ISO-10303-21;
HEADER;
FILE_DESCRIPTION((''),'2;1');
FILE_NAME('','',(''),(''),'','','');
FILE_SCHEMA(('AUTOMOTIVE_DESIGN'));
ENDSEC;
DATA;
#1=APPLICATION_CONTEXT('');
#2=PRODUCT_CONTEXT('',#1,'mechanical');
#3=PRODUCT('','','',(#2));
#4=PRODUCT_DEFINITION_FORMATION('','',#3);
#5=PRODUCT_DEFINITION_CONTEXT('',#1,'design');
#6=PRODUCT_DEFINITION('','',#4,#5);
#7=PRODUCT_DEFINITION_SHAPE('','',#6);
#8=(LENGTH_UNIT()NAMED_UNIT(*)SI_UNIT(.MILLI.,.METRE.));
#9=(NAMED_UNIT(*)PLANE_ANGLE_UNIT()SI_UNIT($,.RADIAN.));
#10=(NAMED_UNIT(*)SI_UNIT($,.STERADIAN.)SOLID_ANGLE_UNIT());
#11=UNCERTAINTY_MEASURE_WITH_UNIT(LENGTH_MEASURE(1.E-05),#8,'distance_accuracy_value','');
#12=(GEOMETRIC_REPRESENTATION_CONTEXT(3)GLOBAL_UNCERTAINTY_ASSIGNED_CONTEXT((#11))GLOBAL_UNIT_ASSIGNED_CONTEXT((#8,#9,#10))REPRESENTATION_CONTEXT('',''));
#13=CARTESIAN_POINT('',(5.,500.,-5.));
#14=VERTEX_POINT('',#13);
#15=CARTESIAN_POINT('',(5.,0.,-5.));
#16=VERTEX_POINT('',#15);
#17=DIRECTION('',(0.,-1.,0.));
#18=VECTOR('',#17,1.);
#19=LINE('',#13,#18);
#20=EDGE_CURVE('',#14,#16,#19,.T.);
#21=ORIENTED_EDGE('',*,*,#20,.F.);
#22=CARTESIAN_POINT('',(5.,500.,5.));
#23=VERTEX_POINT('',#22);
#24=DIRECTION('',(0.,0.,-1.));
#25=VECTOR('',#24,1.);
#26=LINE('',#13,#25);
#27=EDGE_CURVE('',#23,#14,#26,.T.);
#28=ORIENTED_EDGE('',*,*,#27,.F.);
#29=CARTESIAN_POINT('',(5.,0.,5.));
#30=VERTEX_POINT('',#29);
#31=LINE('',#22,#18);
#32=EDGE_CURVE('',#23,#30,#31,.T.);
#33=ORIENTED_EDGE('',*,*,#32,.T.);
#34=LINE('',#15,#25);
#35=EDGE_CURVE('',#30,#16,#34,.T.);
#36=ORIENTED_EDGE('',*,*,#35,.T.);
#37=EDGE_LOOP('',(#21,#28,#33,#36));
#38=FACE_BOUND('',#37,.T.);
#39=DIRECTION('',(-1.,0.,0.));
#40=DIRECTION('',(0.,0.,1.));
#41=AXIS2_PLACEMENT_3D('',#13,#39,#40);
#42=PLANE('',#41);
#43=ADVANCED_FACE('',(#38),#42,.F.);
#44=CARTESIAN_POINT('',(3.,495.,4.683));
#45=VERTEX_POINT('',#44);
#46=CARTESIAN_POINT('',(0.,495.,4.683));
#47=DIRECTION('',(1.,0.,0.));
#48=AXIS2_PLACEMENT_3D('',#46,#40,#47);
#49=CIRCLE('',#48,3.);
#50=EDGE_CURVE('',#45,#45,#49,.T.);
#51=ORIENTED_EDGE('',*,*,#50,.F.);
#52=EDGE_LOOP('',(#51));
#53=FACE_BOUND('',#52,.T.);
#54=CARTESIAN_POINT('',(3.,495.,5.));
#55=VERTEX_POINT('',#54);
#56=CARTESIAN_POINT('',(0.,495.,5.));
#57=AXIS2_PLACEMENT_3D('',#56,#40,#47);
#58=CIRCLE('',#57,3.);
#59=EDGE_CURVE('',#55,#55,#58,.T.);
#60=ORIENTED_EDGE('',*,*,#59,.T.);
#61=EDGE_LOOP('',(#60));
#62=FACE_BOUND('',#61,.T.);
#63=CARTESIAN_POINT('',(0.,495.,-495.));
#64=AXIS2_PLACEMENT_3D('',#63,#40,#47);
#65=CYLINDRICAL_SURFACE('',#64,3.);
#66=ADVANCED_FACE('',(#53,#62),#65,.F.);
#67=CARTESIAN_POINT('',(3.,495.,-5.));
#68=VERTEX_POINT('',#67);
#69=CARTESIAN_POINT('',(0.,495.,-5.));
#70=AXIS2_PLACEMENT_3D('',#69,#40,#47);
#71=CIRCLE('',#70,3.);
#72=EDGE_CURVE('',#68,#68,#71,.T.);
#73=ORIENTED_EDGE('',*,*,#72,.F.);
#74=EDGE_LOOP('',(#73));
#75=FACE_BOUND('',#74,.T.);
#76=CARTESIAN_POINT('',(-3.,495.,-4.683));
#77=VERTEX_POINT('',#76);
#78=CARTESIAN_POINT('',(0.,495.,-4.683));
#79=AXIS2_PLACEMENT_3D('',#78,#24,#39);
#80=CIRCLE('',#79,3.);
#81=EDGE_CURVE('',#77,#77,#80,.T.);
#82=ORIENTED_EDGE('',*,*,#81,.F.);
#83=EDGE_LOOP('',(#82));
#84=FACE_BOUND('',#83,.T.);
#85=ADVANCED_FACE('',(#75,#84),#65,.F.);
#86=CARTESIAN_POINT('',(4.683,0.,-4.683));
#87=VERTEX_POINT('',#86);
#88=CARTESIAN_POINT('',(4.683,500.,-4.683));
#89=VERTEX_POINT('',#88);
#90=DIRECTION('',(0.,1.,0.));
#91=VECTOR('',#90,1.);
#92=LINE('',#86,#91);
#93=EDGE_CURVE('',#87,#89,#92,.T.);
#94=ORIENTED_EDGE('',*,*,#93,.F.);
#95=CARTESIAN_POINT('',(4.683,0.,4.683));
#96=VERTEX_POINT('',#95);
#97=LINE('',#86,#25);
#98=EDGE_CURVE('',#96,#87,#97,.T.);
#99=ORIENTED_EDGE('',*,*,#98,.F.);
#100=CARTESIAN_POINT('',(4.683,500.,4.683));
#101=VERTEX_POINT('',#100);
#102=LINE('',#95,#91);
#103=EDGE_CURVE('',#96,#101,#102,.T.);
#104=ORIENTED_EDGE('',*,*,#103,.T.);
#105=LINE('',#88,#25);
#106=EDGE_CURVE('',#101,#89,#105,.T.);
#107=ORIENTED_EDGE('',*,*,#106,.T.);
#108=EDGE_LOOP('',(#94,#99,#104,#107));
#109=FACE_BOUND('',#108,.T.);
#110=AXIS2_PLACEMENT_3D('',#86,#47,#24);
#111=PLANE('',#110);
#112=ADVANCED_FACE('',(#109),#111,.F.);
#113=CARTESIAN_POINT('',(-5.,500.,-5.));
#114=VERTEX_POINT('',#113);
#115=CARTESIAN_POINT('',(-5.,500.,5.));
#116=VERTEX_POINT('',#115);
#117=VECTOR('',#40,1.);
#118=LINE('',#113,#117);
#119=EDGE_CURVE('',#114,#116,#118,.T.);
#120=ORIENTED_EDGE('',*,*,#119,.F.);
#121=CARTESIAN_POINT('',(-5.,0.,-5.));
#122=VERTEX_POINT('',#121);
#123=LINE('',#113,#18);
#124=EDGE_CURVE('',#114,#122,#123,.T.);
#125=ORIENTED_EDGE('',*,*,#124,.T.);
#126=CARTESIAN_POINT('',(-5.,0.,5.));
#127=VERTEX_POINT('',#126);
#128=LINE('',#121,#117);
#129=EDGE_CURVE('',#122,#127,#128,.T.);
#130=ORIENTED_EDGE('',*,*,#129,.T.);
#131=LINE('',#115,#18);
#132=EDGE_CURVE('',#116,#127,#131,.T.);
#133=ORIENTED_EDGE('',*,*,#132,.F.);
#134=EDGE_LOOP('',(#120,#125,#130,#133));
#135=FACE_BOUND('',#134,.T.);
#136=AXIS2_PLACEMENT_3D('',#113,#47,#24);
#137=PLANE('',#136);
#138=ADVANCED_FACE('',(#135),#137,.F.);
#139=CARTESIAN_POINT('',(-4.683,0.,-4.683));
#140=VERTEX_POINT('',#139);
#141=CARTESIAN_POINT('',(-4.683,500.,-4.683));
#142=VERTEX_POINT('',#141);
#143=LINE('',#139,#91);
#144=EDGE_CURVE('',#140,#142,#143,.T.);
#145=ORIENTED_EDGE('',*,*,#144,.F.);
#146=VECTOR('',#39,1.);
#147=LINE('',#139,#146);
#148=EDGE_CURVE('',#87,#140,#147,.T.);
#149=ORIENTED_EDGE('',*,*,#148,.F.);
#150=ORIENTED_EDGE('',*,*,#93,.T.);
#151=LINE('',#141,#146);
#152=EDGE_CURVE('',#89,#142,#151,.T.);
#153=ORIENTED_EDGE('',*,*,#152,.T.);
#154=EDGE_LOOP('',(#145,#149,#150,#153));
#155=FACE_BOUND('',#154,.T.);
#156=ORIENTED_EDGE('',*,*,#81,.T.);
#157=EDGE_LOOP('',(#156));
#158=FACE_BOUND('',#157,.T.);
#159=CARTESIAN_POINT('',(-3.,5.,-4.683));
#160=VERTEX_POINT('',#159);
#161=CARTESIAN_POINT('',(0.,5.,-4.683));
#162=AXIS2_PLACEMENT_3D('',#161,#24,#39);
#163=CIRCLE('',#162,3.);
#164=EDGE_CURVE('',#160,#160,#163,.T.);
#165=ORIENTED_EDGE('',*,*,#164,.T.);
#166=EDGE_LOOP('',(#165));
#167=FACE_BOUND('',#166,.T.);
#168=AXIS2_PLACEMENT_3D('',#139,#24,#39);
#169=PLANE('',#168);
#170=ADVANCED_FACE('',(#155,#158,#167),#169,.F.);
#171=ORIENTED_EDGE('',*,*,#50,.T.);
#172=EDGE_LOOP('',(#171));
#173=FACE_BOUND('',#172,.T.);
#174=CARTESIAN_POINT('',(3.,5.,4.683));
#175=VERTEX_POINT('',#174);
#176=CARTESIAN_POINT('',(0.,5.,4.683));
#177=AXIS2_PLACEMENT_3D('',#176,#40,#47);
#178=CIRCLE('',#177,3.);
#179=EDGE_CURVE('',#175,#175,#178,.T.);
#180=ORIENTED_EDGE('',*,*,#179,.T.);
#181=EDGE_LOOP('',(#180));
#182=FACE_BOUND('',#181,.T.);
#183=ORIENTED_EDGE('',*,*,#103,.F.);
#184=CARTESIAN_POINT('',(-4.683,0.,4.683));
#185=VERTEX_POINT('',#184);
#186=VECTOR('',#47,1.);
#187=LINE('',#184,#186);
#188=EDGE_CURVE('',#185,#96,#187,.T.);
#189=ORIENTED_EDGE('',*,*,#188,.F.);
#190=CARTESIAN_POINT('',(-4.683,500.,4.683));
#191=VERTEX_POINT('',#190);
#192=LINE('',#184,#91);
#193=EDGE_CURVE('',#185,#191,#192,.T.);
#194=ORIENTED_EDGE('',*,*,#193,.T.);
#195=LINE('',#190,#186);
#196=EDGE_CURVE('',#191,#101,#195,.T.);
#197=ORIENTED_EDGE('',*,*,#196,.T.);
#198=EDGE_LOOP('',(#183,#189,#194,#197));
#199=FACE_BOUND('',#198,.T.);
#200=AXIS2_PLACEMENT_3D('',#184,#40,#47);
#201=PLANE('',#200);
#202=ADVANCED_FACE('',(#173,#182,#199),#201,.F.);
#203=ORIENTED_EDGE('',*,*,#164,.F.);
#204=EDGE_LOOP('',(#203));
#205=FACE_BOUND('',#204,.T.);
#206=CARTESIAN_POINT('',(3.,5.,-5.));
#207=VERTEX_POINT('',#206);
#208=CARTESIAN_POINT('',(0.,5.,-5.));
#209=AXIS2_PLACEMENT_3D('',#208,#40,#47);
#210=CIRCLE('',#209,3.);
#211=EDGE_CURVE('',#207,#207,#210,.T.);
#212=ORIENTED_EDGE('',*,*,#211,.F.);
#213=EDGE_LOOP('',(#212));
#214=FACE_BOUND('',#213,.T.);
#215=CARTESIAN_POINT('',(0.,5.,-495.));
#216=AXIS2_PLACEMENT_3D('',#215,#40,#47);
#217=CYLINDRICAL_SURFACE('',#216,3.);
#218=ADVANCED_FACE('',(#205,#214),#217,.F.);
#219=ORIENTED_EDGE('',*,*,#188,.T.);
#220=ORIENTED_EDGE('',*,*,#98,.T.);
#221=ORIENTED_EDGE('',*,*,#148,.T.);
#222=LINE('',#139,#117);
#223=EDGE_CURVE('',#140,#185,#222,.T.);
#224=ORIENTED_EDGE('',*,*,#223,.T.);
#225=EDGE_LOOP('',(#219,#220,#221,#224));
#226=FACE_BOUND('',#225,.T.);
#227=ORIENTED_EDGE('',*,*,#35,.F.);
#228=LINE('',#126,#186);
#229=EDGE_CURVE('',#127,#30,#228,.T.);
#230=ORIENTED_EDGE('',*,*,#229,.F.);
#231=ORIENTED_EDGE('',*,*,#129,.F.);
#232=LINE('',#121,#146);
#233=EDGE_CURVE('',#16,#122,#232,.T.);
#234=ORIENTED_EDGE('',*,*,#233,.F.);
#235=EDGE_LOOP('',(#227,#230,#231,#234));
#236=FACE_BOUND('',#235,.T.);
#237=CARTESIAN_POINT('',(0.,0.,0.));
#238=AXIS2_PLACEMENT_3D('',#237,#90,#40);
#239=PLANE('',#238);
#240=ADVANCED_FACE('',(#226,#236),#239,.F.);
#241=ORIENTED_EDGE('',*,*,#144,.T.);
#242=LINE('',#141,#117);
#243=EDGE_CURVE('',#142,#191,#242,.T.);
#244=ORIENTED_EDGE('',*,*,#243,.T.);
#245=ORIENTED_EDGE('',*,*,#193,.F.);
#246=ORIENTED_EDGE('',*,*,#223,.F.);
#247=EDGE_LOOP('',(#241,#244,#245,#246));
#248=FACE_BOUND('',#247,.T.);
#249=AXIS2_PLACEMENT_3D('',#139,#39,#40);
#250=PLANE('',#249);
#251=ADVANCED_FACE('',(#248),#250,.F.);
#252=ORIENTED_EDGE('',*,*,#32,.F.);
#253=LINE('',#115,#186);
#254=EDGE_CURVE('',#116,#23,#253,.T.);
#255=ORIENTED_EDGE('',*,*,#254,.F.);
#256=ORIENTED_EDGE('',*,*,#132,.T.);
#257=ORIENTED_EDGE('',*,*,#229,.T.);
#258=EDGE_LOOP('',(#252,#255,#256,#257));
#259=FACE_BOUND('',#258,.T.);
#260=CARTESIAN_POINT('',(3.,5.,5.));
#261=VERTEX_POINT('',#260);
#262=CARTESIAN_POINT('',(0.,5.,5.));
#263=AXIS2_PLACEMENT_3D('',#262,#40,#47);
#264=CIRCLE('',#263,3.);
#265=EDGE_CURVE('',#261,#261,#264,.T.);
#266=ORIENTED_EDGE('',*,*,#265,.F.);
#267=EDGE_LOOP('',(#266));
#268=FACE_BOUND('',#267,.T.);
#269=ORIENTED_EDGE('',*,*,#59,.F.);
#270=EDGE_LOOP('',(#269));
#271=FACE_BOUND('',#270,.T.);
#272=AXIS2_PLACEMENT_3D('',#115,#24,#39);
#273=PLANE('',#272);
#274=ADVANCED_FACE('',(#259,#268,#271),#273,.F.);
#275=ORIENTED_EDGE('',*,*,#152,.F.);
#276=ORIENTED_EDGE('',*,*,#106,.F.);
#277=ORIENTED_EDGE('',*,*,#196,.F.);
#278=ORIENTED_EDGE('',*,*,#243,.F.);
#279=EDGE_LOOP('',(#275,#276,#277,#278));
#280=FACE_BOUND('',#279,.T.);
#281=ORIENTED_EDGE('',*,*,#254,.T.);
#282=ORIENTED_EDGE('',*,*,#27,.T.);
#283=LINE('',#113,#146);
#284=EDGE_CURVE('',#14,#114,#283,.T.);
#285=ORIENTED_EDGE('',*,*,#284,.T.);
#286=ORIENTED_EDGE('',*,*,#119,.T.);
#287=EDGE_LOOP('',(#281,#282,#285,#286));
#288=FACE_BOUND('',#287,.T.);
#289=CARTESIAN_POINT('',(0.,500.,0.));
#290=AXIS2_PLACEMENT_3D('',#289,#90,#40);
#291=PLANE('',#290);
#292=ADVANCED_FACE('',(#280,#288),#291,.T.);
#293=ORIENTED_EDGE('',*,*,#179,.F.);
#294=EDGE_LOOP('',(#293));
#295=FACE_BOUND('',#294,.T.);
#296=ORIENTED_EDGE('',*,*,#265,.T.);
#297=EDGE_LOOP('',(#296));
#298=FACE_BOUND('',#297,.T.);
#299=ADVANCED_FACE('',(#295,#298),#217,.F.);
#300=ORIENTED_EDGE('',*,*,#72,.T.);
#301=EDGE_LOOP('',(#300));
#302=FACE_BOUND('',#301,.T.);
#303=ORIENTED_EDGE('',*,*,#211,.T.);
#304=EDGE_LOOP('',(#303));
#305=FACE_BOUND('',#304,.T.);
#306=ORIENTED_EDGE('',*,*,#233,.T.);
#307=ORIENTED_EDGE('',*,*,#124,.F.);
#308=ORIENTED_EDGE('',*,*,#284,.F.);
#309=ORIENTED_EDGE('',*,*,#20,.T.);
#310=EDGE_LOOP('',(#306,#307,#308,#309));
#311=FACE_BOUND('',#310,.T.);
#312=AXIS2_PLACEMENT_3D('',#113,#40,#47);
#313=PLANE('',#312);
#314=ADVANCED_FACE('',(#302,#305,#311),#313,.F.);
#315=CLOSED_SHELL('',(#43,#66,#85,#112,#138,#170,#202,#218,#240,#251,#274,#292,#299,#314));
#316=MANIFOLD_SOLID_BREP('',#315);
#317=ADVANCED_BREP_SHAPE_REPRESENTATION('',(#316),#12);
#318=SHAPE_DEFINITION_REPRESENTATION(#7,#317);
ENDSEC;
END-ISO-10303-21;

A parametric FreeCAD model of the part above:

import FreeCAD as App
import Part
import Sketcher

V = App.Vector
Q = App.Units.Quantity

doc = App.newDocument("Part")
body = doc.addObject("PartDesign::Body", "Body")

# Sketch on XZ plane
sketch1 = body.newObject("Sketcher::SketchObject", "Sketch")
sketch1.AttachmentSupport = (doc.getObject("XZ_Plane"), [""])
sketch1.MapMode = "FlatFace"
sketch1.addGeometry([
    Part.LineSegment(V(-5, -5, 0), V(-5, 5, 0)),
    Part.LineSegment(V(-5, 5, 0), V(5, 5, 0)),
    Part.LineSegment(V(5, 5, 0), V(5, -5, 0)),
    Part.LineSegment(V(5, -5, 0), V(-5, -5, 0)),
], False)
sketch1.addConstraint([
    Sketcher.Constraint("Coincident", 0, 2, 1, 1),
    Sketcher.Constraint("Coincident", 1, 2, 2, 1),
    Sketcher.Constraint("Coincident", 2, 2, 3, 1),
    Sketcher.Constraint("Coincident", 3, 2, 0, 1),
    Sketcher.Constraint("Vertical", 0),
    Sketcher.Constraint("Horizontal", 1),
    Sketcher.Constraint("Vertical", 2),
    Sketcher.Constraint("Horizontal", 3),
    Sketcher.Constraint("Symmetric", 0, 2, 2, 2, -1, 1),
    Sketcher.Constraint("Equal", 3, 0),
    Sketcher.Constraint("DistanceX", 1, 1, 1, 2, Q("10 mm")),
])
pad1 = body.newObject("PartDesign::Pad", "Pad")
pad1.Profile = sketch1
pad1.Length = 500
pad1.Reversed = True

# Sketch on XZ plane
sketch2 = body.newObject("Sketcher::SketchObject", "Sketch001")
sketch2.AttachmentSupport = (doc.getObject("XZ_Plane"), [""])
sketch2.MapMode = "FlatFace"
sketch2.AttachmentOffset = App.Placement(V(0, 0, -500), App.Rotation())
sketch2.addGeometry([
    Part.LineSegment(V(-4.683, -4.683, 0), V(-4.683, 4.683, 0)),
    Part.LineSegment(V(-4.683, 4.683, 0), V(4.683, 4.683, 0)),
    Part.LineSegment(V(4.683, 4.683, 0), V(4.683, -4.683, 0)),
    Part.LineSegment(V(4.683, -4.683, 0), V(-4.683, -4.683, 0)),
], False)
sketch2.addConstraint([
    Sketcher.Constraint("Coincident", 0, 2, 1, 1),
    Sketcher.Constraint("Coincident", 1, 2, 2, 1),
    Sketcher.Constraint("Coincident", 2, 2, 3, 1),
    Sketcher.Constraint("Coincident", 3, 2, 0, 1),
    Sketcher.Constraint("Vertical", 0),
    Sketcher.Constraint("Horizontal", 1),
    Sketcher.Constraint("Vertical", 2),
    Sketcher.Constraint("Horizontal", 3),
    Sketcher.Constraint("Symmetric", 0, 2, 2, 2, -1, 1),
    Sketcher.Constraint("Equal", 3, 0),
    Sketcher.Constraint("DistanceX", 1, 1, 1, 2, Q("9.366 mm")),
])
pocket1 = body.newObject("PartDesign::Pocket", "Pocket")
pocket1.Profile = sketch2
pocket1.Length = 500
pocket1.Reversed = True

# Sketch on XY plane
sketch3 = body.newObject("Sketcher::SketchObject", "Sketch002")
sketch3.AttachmentSupport = (doc.getObject("XY_Plane"), [""])
sketch3.MapMode = "FlatFace"
sketch3.AttachmentOffset = App.Placement(V(0, 0, 5), App.Rotation())
sketch3.addGeometry(Part.Circle(V(0, 5, 0), V(0, 0, 1), 3), False)
sketch3.addConstraint([
    Sketcher.Constraint("PointOnObject", 0, 3, -2),
    Sketcher.Constraint("Diameter", 0, Q("6 mm")),
    Sketcher.Constraint("DistanceY", -1, 1, 0, 3, Q("5 mm")),
])
pocket2 = body.newObject("PartDesign::Pocket", "Pocket001")
pocket2.Profile = sketch3
pocket2.Length = 500

# Sketch on XY plane
sketch4 = body.newObject("Sketcher::SketchObject", "Sketch003")
sketch4.AttachmentSupport = (doc.getObject("XY_Plane"), [""])
sketch4.MapMode = "FlatFace"
sketch4.AttachmentOffset = App.Placement(V(0, 0, 5), App.Rotation())
sketch4.addGeometry(Part.Circle(V(0, 495, 0), V(0, 0, 1), 3), False)
sketch4.addConstraint([
    Sketcher.Constraint("PointOnObject", 0, 3, -2),
    Sketcher.Constraint("Diameter", 0, Q("6 mm")),
    Sketcher.Constraint("DistanceY", -1, 1, 0, 3, Q("495 mm")),
])
pocket3 = body.newObject("PartDesign::Pocket", "Pocket002")
pocket3.Profile = sketch4
pocket3.Length = 500

doc.recompute()
